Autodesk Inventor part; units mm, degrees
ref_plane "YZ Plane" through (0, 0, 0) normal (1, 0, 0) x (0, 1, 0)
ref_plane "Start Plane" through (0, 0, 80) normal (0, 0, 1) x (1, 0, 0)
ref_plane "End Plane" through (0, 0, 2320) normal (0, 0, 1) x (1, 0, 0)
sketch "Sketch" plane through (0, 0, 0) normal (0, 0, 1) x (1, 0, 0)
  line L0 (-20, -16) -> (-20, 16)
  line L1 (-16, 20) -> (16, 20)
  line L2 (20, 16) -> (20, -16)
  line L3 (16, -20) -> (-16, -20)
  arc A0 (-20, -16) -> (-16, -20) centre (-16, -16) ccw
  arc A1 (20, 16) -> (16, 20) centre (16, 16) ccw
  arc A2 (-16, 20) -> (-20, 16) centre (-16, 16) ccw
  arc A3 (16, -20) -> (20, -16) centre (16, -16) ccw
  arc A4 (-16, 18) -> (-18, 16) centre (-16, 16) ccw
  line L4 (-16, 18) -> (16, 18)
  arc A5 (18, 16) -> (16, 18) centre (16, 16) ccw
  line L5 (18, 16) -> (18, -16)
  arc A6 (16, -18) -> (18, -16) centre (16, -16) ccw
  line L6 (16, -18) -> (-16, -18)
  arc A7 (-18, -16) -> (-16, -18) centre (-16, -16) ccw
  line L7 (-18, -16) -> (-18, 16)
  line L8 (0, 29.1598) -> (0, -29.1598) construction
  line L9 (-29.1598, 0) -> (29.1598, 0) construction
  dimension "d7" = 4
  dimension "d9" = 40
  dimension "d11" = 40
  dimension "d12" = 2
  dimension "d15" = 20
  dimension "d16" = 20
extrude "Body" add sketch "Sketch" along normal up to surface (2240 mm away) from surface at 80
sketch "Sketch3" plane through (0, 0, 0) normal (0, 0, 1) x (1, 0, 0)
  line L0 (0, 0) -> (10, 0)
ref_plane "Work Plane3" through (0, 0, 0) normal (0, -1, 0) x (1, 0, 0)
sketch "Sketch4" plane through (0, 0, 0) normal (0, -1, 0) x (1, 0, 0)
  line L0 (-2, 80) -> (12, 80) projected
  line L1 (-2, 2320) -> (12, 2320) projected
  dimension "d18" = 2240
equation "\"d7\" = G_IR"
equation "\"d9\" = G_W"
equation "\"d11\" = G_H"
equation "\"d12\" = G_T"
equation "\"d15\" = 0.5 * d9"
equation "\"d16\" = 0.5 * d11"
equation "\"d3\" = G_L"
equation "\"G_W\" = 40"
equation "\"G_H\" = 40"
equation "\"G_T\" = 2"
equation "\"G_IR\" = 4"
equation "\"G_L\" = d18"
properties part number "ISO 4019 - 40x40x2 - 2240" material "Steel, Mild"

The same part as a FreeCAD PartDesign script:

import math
import FreeCAD as App
import Part
import Sketcher
from FreeCAD import Vector

doc = App.newDocument("Part")
body = doc.addObject("PartDesign::Body", "Body")

# Sketch on XY plane
sketch1 = body.newObject("Sketcher::SketchObject", "Sketch")
sketch1.AttachmentSupport = (doc.getObject("XY_Plane"), [""])
sketch1.MapMode = "FlatFace"
sketch1.AttachmentOffset = App.Placement(Vector(0, 0, 80), App.Rotation())
sketch1.addGeometry([
    Part.LineSegment(Vector(-20, 16, 0), Vector(-20, -16, 0)),  # 0
    Part.ArcOfCircle(Part.Circle(Vector(-16, -16, 0), Vector(0, 0, 1), 4), math.radians(180), math.radians(270)),  # 1
    Part.LineSegment(Vector(-16, -20, 0), Vector(16, -20, 0)),  # 2
    Part.ArcOfCircle(Part.Circle(Vector(16, -16, 0), Vector(0, 0, 1), 4), math.radians(-90), math.radians(0)),  # 3
    Part.LineSegment(Vector(20, -16, 0), Vector(20, 16, 0)),  # 4
    Part.ArcOfCircle(Part.Circle(Vector(16, 16, 0), Vector(0, 0, 1), 4), math.radians(0), math.radians(90)),  # 5
    Part.LineSegment(Vector(16, 20, 0), Vector(-16, 20, 0)),  # 6
    Part.ArcOfCircle(Part.Circle(Vector(-16, 16, 0), Vector(0, 0, 1), 4), math.radians(90), math.radians(180)),  # 7
    Part.ArcOfCircle(Part.Circle(Vector(-16, 16, 0), Vector(0, 0, 1), 2), math.radians(90), math.radians(180)),  # 8
    Part.LineSegment(Vector(-16, 18, 0), Vector(16, 18, 0)),  # 9
    Part.ArcOfCircle(Part.Circle(Vector(16, 16, 0), Vector(0, 0, 1), 2), math.radians(0), math.radians(90)),  # 10
    Part.LineSegment(Vector(18, 16, 0), Vector(18, -16, 0)),  # 11
    Part.ArcOfCircle(Part.Circle(Vector(16, -16, 0), Vector(0, 0, 1), 2), math.radians(-90), math.radians(0)),  # 12
    Part.LineSegment(Vector(16, -18, 0), Vector(-16, -18, 0)),  # 13
    Part.ArcOfCircle(Part.Circle(Vector(-16, -16, 0), Vector(0, 0, 1), 2), math.radians(180), math.radians(270)),  # 14
    Part.LineSegment(Vector(-18, -16, 0), Vector(-18, 16, 0)),  # 15
], False)
sketch1.addConstraint([
    Sketcher.Constraint("Tangent", 0, 2, 1, 1),
    Sketcher.Constraint("Tangent", 1, 2, 2, 1),
    Sketcher.Constraint("Tangent", 2, 2, 3, 1),
    Sketcher.Constraint("Tangent", 3, 2, 4, 1),
    Sketcher.Constraint("Tangent", 4, 2, 5, 1),
    Sketcher.Constraint("Tangent", 5, 2, 6, 1),
    Sketcher.Constraint("Tangent", 6, 2, 7, 1),
    Sketcher.Constraint("Tangent", 7, 2, 0, 1),
    Sketcher.Constraint("Tangent", 8, 1, 9, 1),
    Sketcher.Constraint("Tangent", 9, 2, 10, 2),
    Sketcher.Constraint("Tangent", 10, 1, 11, 1),
    Sketcher.Constraint("Tangent", 11, 2, 12, 2),
    Sketcher.Constraint("Tangent", 12, 1, 13, 1),
    Sketcher.Constraint("Tangent", 13, 2, 14, 2),
    Sketcher.Constraint("Tangent", 14, 1, 15, 1),
    Sketcher.Constraint("Tangent", 15, 2, 8, 2),
    Sketcher.Constraint("Vertical", 0),
    Sketcher.Constraint("Horizontal", 2),
    Sketcher.Constraint("Vertical", 4),
    Sketcher.Constraint("Horizontal", 6),
    Sketcher.Constraint("Horizontal", 9),
    Sketcher.Constraint("Vertical", 11),
    Sketcher.Constraint("Horizontal", 13),
    Sketcher.Constraint("Vertical", 15),
    Sketcher.Constraint("Coincident", 8, 3, 7, 3),
    Sketcher.Constraint("Coincident", 10, 3, 5, 3),
    Sketcher.Constraint("Coincident", 12, 3, 3, 3),
    Sketcher.Constraint("Equal", 1, 3),
    Sketcher.Constraint("Equal", 3, 5),
    Sketcher.Constraint("Equal", 5, 7),
    Sketcher.Constraint("Equal", 12, 14),
    Sketcher.Constraint("Symmetric", 1, 3, 5, 3, -1, 1),
    Sketcher.Constraint("Equal", 13, 0),
    Sketcher.Constraint("Radius", 1, 4.0),
    Sketcher.Constraint("Radius", 8, 2.0),
    Sketcher.Constraint("DistanceX", 0, 2, -1, 1, 20.0),
])
pad1 = body.newObject("PartDesign::Pad", "Pad")
pad1.Profile = sketch1
pad1.Length = 2240

doc.recompute()
